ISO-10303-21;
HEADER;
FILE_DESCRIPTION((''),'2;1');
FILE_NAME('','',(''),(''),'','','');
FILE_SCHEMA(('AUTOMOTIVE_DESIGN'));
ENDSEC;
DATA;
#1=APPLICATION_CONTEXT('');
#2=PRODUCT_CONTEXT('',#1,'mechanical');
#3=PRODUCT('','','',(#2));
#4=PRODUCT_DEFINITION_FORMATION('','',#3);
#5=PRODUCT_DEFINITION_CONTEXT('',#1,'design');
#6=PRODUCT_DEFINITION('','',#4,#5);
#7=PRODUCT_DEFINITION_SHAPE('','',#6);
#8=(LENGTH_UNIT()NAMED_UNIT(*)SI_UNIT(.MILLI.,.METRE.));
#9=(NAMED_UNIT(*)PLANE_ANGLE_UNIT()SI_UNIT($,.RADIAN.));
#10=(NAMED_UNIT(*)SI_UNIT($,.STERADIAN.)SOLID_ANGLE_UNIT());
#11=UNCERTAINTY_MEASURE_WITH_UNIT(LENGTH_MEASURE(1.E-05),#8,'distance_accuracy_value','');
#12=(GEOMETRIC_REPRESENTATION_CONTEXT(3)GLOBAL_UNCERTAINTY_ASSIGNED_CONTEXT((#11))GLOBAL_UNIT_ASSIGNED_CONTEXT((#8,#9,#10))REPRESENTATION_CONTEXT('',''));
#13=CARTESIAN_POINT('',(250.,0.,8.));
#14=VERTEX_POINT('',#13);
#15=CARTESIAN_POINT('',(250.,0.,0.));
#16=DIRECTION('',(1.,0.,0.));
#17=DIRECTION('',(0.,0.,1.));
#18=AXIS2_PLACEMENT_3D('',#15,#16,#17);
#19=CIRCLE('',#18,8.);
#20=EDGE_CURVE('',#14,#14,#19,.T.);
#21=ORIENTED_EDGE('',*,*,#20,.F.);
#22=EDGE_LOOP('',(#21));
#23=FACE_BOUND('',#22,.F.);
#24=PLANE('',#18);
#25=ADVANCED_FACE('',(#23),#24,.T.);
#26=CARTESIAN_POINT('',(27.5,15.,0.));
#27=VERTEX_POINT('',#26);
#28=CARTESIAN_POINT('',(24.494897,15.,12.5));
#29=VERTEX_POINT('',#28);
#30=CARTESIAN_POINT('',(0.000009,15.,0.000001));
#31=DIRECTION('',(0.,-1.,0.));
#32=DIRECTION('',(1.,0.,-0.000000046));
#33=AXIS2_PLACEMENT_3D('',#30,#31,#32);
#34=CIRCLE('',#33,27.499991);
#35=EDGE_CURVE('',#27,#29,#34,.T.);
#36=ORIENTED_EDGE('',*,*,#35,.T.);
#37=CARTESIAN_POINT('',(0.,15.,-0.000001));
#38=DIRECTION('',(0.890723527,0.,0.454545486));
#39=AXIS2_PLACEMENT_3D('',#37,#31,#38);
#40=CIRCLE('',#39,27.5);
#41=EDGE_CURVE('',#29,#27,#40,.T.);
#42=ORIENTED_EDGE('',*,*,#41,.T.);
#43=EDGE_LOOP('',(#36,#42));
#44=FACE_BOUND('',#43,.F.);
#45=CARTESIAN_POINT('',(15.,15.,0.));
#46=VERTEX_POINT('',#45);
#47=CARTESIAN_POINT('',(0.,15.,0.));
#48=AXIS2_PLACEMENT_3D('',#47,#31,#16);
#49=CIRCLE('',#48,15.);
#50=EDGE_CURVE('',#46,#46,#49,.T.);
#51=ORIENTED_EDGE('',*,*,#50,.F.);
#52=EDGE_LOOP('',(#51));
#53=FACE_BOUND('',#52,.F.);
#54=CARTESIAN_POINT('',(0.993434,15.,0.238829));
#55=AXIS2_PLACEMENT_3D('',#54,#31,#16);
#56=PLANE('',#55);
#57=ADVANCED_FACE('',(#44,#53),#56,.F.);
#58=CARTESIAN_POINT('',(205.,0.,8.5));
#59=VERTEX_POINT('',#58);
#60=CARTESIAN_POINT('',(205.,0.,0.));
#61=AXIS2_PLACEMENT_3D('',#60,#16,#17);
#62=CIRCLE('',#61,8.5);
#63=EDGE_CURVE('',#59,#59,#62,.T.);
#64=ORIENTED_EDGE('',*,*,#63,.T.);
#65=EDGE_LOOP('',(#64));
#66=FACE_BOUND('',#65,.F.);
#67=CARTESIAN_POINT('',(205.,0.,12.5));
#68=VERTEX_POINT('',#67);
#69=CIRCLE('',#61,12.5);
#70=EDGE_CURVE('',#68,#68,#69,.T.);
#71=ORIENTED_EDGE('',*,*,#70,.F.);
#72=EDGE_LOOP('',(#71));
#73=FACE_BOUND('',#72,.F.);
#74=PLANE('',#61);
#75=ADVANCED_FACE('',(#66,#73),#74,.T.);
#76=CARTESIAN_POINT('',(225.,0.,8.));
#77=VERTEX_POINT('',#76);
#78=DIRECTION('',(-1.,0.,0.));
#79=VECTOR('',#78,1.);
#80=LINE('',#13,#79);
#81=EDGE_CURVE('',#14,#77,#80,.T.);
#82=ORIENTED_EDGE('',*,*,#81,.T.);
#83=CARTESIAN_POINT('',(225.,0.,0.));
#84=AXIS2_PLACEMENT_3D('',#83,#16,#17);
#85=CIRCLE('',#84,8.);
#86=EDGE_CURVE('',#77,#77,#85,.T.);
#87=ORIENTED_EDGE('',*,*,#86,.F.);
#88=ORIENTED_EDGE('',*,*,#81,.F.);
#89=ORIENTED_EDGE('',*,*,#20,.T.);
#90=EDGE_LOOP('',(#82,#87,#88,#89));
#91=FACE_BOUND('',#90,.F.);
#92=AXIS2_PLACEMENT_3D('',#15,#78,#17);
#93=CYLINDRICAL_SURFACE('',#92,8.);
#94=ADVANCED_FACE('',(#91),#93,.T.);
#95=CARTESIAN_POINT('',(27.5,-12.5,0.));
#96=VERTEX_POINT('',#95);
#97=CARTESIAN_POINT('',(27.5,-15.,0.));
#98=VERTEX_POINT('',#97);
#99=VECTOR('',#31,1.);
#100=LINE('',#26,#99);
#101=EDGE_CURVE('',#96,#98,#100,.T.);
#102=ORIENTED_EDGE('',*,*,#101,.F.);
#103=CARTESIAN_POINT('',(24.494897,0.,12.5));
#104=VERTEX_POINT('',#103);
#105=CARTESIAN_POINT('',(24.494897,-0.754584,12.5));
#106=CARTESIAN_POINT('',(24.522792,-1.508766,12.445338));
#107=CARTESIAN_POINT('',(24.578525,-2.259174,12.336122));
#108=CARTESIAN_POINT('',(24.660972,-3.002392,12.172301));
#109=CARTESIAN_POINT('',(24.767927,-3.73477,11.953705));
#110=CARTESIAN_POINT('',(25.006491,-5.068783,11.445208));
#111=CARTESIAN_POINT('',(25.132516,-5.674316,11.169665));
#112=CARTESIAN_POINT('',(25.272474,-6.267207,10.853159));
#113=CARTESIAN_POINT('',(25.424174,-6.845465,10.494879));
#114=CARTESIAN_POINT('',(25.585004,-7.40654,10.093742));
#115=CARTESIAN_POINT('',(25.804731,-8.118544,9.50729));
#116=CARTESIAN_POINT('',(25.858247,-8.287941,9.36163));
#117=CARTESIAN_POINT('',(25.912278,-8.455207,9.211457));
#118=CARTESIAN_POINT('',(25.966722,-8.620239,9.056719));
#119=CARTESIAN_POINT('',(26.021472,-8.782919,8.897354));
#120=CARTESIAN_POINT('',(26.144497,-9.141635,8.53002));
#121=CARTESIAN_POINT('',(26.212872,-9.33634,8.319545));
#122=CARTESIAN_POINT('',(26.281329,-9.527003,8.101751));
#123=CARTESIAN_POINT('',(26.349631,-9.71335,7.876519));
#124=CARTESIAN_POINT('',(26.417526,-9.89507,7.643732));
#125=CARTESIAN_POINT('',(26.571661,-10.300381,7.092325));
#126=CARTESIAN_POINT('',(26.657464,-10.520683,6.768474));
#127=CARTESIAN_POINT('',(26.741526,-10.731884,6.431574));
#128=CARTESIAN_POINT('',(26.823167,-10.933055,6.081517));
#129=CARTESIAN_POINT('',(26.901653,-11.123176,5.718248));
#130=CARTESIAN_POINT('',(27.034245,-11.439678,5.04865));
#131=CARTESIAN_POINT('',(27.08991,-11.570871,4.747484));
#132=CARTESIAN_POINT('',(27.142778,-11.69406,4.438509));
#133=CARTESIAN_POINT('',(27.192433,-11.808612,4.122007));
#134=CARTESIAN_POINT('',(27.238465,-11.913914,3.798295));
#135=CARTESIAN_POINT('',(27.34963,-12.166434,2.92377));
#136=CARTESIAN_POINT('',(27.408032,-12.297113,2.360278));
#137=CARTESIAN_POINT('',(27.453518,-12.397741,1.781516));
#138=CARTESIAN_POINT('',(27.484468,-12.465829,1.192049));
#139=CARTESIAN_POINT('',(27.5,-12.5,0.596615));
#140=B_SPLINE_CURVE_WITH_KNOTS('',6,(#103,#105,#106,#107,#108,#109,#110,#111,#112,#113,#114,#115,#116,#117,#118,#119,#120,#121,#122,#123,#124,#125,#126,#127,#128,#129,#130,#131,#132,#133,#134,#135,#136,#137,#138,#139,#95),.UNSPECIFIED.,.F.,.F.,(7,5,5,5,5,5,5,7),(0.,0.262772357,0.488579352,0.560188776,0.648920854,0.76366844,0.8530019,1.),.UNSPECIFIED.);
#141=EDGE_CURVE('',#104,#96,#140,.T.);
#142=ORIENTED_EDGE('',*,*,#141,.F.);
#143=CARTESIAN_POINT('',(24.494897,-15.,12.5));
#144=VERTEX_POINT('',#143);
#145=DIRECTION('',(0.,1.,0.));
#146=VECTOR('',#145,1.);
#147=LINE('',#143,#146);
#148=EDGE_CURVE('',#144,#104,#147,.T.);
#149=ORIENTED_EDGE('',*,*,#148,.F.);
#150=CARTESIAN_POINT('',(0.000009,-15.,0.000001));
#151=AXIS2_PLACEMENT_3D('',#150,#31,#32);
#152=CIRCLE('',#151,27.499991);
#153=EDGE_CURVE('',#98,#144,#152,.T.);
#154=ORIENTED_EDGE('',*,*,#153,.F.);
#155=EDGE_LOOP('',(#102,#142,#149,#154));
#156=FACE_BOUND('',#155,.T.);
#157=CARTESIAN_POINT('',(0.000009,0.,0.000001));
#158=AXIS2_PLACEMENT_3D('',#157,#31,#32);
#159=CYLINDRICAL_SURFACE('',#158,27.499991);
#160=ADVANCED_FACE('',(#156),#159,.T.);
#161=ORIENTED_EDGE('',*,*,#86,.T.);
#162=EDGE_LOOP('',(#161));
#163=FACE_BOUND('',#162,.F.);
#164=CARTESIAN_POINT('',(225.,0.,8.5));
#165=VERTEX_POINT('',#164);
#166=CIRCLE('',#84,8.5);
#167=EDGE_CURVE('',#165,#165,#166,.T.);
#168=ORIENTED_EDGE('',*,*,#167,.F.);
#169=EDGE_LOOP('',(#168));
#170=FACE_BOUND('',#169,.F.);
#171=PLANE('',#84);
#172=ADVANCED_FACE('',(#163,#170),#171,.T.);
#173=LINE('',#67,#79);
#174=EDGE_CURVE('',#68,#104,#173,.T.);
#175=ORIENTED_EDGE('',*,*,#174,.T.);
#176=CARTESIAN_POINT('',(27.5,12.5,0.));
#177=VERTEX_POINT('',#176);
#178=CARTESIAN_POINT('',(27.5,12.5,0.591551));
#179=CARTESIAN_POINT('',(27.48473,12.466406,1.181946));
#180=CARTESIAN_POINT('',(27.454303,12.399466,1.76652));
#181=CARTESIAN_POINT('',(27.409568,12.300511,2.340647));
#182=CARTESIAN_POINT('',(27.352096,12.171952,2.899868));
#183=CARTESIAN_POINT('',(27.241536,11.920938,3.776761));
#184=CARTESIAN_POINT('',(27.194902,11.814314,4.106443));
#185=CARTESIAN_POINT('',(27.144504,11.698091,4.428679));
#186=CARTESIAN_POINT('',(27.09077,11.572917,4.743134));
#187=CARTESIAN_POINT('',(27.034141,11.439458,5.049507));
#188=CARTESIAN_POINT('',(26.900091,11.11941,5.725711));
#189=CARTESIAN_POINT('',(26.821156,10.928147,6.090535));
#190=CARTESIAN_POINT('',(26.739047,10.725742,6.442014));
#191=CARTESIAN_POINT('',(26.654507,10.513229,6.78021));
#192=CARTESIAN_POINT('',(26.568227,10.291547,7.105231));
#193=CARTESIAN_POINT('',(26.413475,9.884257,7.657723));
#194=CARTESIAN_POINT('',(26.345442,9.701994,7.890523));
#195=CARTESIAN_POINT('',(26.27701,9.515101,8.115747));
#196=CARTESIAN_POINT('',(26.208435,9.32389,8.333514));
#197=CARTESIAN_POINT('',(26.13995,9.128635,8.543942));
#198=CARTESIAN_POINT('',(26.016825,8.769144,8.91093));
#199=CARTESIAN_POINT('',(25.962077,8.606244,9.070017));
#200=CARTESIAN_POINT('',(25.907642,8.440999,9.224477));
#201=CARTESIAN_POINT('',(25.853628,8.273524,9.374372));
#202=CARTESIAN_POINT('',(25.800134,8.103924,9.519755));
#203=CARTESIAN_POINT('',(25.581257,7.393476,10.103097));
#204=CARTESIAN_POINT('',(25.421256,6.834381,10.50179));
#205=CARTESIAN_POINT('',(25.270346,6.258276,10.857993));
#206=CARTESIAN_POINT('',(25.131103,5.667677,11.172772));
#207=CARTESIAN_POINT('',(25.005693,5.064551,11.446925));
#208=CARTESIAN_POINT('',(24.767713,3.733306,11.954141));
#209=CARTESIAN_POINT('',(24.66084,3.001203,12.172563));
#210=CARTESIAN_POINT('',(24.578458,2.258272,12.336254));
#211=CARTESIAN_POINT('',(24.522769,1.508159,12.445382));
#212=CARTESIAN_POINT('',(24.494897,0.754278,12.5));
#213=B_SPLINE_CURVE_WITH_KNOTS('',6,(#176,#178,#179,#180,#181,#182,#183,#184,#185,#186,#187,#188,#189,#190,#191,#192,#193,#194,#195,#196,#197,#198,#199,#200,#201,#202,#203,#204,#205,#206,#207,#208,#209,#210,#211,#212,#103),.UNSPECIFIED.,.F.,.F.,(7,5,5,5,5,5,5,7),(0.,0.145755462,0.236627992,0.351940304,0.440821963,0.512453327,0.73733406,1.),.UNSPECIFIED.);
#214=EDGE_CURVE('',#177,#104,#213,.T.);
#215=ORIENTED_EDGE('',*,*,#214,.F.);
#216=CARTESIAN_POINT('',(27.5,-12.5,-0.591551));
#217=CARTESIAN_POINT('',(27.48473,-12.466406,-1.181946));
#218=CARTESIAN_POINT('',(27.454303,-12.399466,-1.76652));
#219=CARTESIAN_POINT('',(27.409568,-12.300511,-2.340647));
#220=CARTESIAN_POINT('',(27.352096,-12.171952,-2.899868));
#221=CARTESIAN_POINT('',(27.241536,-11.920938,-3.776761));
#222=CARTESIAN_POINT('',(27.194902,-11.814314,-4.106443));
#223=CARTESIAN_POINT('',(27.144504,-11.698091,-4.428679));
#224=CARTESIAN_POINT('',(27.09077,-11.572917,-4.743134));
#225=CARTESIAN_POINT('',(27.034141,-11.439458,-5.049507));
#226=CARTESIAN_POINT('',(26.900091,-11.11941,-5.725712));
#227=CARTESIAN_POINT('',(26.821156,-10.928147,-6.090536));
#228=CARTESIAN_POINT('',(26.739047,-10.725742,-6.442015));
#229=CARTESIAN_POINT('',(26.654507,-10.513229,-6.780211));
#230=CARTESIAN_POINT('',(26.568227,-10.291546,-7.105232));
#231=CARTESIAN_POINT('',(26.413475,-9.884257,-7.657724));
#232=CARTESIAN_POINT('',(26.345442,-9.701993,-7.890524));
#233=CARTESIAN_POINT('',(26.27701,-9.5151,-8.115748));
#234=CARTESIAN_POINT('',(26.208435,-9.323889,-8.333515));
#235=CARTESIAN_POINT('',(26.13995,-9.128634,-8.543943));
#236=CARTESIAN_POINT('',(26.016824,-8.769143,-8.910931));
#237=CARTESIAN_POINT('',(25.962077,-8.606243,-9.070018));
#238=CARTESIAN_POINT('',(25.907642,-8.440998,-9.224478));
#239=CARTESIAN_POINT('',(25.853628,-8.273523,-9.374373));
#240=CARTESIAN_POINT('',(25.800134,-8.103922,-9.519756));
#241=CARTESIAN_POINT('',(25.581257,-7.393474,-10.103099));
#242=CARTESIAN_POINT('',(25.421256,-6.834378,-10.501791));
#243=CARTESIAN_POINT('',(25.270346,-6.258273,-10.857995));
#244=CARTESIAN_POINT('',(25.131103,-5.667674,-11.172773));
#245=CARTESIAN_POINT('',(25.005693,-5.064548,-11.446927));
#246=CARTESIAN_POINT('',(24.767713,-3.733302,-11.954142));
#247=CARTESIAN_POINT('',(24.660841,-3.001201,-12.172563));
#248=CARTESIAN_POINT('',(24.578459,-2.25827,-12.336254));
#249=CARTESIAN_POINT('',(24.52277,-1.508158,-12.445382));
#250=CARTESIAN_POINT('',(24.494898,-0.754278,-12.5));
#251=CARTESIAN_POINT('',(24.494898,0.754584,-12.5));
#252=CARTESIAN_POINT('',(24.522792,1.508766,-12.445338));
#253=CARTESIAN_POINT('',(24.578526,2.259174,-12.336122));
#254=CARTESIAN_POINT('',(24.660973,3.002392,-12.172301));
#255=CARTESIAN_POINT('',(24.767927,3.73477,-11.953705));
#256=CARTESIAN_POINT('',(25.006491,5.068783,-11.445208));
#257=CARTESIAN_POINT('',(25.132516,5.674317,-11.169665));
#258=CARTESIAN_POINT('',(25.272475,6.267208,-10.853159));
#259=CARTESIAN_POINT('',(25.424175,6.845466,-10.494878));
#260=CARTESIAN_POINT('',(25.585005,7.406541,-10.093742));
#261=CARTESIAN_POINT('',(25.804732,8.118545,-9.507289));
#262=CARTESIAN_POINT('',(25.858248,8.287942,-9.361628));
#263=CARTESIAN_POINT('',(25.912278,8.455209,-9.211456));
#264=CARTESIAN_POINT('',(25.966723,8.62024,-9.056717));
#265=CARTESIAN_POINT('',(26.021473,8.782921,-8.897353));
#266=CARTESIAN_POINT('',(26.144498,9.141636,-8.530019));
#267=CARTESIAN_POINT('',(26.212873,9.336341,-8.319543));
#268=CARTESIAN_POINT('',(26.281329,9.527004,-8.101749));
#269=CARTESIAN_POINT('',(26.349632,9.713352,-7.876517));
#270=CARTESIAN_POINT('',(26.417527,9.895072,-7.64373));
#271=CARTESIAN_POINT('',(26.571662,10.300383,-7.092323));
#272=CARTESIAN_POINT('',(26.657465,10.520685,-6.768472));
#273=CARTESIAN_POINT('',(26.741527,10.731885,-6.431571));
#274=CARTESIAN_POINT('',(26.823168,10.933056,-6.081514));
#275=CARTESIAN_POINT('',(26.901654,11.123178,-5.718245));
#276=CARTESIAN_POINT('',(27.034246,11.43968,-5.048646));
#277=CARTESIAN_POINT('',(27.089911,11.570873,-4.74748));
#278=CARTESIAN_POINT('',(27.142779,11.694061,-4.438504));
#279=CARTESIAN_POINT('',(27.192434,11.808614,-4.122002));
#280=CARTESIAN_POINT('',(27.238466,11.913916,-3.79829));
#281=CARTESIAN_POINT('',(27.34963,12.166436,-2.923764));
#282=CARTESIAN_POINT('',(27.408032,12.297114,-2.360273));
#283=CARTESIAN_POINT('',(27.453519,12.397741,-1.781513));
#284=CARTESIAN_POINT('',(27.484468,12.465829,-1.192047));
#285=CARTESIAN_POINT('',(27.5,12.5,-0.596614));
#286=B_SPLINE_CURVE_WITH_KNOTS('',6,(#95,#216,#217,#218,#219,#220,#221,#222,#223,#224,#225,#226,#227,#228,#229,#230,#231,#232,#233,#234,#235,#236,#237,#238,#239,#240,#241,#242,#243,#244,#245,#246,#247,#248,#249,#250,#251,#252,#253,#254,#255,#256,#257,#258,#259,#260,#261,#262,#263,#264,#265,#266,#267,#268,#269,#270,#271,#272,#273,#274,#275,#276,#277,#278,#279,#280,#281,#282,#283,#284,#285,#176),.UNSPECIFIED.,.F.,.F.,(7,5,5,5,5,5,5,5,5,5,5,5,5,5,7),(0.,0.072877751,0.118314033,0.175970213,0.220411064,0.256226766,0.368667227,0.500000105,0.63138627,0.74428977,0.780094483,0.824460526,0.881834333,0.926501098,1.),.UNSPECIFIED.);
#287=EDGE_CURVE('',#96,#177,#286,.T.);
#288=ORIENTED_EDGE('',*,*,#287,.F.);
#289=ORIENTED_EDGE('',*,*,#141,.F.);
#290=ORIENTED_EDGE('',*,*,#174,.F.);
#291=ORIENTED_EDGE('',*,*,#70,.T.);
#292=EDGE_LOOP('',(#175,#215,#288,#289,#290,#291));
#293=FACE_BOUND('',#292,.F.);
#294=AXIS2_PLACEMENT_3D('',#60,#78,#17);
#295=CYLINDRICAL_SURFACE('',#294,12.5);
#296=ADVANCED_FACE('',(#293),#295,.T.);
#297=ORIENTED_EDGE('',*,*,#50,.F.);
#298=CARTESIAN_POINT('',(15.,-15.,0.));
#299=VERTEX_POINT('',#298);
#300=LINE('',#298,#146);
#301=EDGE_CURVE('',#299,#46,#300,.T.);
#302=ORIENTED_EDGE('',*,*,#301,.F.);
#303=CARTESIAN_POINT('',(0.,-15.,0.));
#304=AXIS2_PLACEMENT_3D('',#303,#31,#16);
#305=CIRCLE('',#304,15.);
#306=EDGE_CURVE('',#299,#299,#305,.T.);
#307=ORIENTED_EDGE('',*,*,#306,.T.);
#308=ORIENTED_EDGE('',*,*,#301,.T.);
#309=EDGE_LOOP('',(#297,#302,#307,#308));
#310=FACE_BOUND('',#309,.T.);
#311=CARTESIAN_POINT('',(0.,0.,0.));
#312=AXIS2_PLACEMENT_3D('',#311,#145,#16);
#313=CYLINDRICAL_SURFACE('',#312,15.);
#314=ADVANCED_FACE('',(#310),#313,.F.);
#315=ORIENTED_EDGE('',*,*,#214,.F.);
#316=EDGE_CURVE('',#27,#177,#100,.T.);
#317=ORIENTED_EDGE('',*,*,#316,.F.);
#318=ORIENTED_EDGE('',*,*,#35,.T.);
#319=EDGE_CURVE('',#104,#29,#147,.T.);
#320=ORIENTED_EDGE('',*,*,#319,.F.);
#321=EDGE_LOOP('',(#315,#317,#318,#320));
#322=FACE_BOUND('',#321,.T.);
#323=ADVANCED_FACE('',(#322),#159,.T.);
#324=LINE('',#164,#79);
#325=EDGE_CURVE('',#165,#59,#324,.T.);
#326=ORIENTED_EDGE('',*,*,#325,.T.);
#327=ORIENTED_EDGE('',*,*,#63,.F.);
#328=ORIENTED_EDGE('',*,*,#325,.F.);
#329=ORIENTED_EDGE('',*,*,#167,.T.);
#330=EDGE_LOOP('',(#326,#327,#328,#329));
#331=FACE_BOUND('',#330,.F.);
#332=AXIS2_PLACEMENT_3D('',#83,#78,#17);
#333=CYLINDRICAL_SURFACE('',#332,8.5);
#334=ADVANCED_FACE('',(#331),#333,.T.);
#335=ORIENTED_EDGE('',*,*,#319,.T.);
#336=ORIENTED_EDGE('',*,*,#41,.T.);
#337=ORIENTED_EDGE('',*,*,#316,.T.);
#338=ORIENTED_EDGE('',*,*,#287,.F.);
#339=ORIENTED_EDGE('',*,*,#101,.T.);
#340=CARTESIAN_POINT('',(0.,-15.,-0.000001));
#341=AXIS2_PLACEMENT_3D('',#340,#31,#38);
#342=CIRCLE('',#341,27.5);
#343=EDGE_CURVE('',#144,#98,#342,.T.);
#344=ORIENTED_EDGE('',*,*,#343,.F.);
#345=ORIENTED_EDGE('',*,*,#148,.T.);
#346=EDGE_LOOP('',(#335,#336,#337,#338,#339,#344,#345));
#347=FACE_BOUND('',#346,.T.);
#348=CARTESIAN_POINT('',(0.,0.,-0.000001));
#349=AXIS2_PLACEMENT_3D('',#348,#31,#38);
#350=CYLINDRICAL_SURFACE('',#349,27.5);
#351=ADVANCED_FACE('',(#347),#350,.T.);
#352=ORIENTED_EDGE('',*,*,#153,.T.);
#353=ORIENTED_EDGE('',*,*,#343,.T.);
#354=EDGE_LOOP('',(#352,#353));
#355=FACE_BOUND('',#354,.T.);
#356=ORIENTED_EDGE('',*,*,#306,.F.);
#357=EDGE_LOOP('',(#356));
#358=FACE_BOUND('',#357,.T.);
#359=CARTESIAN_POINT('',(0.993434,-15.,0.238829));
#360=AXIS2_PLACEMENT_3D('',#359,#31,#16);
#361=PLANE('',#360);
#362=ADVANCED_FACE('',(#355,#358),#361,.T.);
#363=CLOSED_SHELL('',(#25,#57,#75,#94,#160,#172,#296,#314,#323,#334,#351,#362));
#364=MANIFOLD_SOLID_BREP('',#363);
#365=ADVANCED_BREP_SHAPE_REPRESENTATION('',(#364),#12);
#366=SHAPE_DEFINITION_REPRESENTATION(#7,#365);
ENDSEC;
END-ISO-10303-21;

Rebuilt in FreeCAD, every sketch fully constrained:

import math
import FreeCAD as App
import Part
import Sketcher
Q = App.Units.Quantity

doc = App.newDocument("Part")
body = doc.addObject("PartDesign::Body", "Body")

# Sketch on XZ plane
sketch1 = doc.addObject("Sketcher::SketchObject", "Sketch")
body.addObject(sketch1)
sketch1.AttachmentSupport = (doc.XZ_Plane, [""])
sketch1.MapMode = "FlatFace"
sketch1.addGeometry(Part.ArcOfCircle(Part.Circle(App.Vector(0, 0, 0), App.Vector(0, 0, 1), 27.5), math.radians(0), math.radians(27)), False)
sketch1.addGeometry(Part.LineSegment(App.Vector(27.5, 0, 0), App.Vector(250, 0, 0)), False)
sketch1.addGeometry(Part.LineSegment(App.Vector(250, 0, 0), App.Vector(250, 8, 0)), False)
sketch1.addGeometry(Part.LineSegment(App.Vector(250, 8, 0), App.Vector(225, 8, 0)), False)
sketch1.addGeometry(Part.LineSegment(App.Vector(225, 8, 0), App.Vector(225, 8.5, 0)), False)
sketch1.addGeometry(Part.LineSegment(App.Vector(225, 8.5, 0), App.Vector(205, 8.5, 0)), False)
sketch1.addGeometry(Part.LineSegment(App.Vector(205, 8.5, 0), App.Vector(205, 12.5, 0)), False)
sketch1.addGeometry(Part.LineSegment(App.Vector(205, 12.5, 0), App.Vector(24.5, 12.5, 0)), False)
sketch1.addConstraint(Sketcher.Constraint("Coincident", 0, 1, 1, 1))
sketch1.addConstraint(Sketcher.Constraint("Coincident", 1, 2, 2, 1))
sketch1.addConstraint(Sketcher.Constraint("Coincident", 2, 2, 3, 1))
sketch1.addConstraint(Sketcher.Constraint("Coincident", 3, 2, 4, 1))
sketch1.addConstraint(Sketcher.Constraint("Coincident", 4, 2, 5, 1))
sketch1.addConstraint(Sketcher.Constraint("Coincident", 5, 2, 6, 1))
sketch1.addConstraint(Sketcher.Constraint("Coincident", 6, 2, 7, 1))
sketch1.addConstraint(Sketcher.Constraint("Coincident", 7, 2, 0, 2))
sketch1.addConstraint(Sketcher.Constraint("Horizontal", 1))
sketch1.addConstraint(Sketcher.Constraint("Vertical", 2))
sketch1.addConstraint(Sketcher.Constraint("Horizontal", 3))
sketch1.addConstraint(Sketcher.Constraint("Vertical", 4))
sketch1.addConstraint(Sketcher.Constraint("Horizontal", 5))
sketch1.addConstraint(Sketcher.Constraint("Vertical", 6))
sketch1.addConstraint(Sketcher.Constraint("Horizontal", 7))
sketch1.addConstraint(Sketcher.Constraint("Coincident", 0, 3, -1, 1))
sketch1.addConstraint(Sketcher.Constraint("PointOnObject", 0, 1, -1))
sketch1.addConstraint(Sketcher.Constraint("DistanceX", 3, 2, 3, 1, Q("25 mm")))
sketch1.addConstraint(Sketcher.Constraint("DistanceX", 5, 2, 5, 1, Q("20 mm")))
sketch1.addConstraint(Sketcher.Constraint("DistanceY", 2, 1, 2, 2, Q("8 mm")))
sketch1.addConstraint(Sketcher.Constraint("DistanceY", 6, 1, 6, 2, Q("4 mm")))
sketch1.addConstraint(Sketcher.Constraint("DistanceX", 1, 1, 1, 2, Q("222.5 mm")))
sketch1.addConstraint(Sketcher.Constraint("DistanceY", 4, 1, 4, 2, Q("0.5 mm")))
sketch1.addConstraint(Sketcher.Constraint("DistanceX", -1, 1, 1, 2, Q("250 mm")))
revolution = doc.addObject("PartDesign::Revolution", "Revolution")
body.addObject(revolution)
revolution.Profile = sketch1
revolution.ReferenceAxis = (sketch1, ["H_Axis"])
revolution.Angle = 360

# Sketch on XZ plane
sketch2 = doc.addObject("Sketcher::SketchObject", "Sketch001")
body.addObject(sketch2)
sketch2.AttachmentSupport = (doc.XZ_Plane, [""])
sketch2.MapMode = "FlatFace"
sketch2.addGeometry(Part.ArcOfCircle(Part.Circle(App.Vector(0, 0, 0), App.Vector(0, 0, 1), 27), math.radians(27), math.radians(360)), False)
sketch2.addGeometry(Part.ArcOfCircle(Part.Circle(App.Vector(0, 0, 0), App.Vector(0, 0, 1), 27), math.radians(0), math.radians(27)), False)
sketch2.addGeometry(Part.Circle(App.Vector(0, 0, 0), App.Vector(0, 0, 1), 15), False)
sketch2.addConstraint(Sketcher.Constraint("Tangent", 0, 1, 1, 2))
sketch2.addConstraint(Sketcher.Constraint("Coincident", 1, 1, 0, 2))
sketch2.addConstraint(Sketcher.Constraint("Coincident", 0, 3, -1, 1))
sketch2.addConstraint(Sketcher.Constraint("Coincident", 2, 3, -1, 1))
sketch2.addConstraint(Sketcher.Constraint("PointOnObject", 1, 1, -1))
sketch2.addConstraint(Sketcher.Constraint("Diameter", 2, Q("30 mm")))
sketch2.addConstraint(Sketcher.Constraint("Radius", 0, Q("27.5 mm")))
sketch2.addConstraint(Sketcher.Constraint("DistanceY", -1, 1, 0, 1, Q("12.5 mm")))
pad1 = doc.addObject("PartDesign::Pad", "Pad")
body.addObject(pad1)
pad1.Profile = sketch2
pad1.Length = 30
pad1.Midplane = True

doc.recompute()
